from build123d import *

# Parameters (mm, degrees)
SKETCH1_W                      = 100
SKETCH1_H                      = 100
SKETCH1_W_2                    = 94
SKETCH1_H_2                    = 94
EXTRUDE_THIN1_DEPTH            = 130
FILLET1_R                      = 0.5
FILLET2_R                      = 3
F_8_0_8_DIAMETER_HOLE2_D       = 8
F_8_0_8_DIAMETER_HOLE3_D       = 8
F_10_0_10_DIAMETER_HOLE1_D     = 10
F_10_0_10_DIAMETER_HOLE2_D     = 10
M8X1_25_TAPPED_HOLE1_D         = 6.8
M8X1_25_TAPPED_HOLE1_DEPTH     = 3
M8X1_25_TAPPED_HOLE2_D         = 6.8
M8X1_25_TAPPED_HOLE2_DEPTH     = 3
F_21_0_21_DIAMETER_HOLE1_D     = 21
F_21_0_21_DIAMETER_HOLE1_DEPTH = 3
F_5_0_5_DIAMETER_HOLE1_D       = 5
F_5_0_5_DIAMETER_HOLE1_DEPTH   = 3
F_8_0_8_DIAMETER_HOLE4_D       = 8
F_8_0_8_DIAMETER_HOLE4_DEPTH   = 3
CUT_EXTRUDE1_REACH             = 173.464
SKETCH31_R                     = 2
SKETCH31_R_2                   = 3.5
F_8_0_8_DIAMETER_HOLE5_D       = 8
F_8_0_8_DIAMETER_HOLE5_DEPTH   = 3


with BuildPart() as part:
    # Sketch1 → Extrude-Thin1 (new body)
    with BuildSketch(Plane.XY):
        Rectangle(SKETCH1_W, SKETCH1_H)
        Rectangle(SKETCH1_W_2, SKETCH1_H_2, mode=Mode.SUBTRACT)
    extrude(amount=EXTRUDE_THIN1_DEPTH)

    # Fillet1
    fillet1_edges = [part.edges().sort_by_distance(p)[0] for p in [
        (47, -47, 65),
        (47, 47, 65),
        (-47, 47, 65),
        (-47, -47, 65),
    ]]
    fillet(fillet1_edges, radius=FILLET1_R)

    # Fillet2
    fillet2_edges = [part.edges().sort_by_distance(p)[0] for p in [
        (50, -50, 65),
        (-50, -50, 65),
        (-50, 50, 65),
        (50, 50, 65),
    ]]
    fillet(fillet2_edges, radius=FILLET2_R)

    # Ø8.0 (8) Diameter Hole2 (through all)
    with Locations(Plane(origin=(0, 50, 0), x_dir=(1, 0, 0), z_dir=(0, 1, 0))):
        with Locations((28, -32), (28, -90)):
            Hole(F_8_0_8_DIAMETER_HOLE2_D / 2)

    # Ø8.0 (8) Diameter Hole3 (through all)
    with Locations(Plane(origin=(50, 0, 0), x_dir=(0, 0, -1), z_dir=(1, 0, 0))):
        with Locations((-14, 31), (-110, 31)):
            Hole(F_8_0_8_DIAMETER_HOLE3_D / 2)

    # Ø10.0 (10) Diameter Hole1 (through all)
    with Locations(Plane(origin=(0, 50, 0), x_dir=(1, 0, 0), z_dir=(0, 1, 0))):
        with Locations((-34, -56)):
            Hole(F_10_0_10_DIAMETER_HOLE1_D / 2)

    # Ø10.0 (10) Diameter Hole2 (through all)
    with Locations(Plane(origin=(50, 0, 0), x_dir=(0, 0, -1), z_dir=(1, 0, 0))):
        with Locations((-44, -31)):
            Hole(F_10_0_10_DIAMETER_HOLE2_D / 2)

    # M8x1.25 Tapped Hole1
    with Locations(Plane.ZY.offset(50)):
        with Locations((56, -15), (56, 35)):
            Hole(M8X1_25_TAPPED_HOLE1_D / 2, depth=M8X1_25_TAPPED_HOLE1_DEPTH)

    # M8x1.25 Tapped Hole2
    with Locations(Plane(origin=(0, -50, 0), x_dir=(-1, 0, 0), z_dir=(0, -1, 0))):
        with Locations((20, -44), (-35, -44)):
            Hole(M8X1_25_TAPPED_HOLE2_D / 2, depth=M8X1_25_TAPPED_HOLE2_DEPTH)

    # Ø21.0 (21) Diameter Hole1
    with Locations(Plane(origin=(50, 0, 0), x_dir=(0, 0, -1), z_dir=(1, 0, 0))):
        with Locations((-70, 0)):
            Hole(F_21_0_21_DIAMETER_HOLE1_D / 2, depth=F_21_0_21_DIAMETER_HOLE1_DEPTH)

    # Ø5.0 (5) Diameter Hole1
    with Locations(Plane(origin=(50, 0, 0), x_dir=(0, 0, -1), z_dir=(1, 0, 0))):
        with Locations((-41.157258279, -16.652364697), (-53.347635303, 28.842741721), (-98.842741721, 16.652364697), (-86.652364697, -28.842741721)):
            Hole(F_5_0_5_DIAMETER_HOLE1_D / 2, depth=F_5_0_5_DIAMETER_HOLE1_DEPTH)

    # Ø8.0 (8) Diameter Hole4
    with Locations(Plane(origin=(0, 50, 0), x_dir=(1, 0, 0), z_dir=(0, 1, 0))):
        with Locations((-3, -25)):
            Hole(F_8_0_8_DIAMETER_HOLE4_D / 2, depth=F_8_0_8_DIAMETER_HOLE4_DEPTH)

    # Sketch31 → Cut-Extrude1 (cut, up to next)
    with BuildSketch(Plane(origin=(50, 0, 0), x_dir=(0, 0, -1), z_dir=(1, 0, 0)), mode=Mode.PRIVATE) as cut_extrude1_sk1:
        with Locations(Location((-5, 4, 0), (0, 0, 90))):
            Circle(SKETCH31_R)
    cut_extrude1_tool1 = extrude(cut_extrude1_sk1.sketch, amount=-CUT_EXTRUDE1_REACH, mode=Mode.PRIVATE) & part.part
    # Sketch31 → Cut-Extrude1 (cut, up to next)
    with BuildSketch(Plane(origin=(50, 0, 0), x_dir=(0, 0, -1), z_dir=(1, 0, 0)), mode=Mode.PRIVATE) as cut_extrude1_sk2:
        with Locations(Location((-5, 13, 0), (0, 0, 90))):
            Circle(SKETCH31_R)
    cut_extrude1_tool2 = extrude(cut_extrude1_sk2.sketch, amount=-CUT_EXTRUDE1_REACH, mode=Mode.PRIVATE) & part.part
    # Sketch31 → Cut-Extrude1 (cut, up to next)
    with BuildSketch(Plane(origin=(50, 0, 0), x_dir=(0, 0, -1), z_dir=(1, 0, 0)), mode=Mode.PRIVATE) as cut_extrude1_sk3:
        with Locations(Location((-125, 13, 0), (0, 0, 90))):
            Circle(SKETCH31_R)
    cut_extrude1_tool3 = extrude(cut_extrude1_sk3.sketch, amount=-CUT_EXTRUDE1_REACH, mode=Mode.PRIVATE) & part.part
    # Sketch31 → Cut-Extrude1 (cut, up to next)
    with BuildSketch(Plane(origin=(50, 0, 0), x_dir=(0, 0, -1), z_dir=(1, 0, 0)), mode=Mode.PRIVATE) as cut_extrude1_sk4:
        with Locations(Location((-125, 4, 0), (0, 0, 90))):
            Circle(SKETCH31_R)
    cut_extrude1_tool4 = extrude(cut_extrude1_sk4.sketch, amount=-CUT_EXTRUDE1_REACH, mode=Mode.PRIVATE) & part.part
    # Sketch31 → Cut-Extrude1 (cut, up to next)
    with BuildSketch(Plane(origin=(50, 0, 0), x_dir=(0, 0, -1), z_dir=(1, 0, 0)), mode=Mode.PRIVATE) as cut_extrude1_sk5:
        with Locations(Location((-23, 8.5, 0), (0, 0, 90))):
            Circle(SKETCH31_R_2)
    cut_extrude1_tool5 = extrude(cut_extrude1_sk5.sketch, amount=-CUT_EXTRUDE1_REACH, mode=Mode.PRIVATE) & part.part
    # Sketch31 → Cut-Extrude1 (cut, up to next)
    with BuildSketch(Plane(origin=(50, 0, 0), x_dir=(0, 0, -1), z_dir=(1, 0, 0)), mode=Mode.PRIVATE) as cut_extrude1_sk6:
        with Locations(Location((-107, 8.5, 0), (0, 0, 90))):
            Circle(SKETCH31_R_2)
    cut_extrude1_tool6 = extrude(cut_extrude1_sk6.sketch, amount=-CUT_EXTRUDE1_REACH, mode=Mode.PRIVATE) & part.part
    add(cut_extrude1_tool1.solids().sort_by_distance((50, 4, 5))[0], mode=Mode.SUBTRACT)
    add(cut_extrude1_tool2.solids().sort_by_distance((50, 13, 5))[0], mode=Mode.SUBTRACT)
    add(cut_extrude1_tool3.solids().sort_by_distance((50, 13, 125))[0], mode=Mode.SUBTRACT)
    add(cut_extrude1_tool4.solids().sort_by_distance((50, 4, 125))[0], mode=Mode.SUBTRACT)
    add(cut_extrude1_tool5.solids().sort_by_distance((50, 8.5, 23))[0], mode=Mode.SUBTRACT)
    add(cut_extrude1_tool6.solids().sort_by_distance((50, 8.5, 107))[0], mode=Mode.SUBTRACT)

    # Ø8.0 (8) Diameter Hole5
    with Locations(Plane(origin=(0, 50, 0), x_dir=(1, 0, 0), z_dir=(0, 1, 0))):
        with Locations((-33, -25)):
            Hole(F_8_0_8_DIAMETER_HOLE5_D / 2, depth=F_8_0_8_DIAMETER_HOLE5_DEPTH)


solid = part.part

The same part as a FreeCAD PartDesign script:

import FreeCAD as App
import Part
import Sketcher
from FreeCAD import Vector
Q = App.Units.Quantity


def edges_at(feature, points):
    """Names of the edges that pass closest to the given points."""
    edges = feature.Shape.Edges
    near = lambda p: min(range(len(edges)), key=lambda i: edges[i].distToShape(Part.Vertex(*p))[0])
    return sorted({f"Edge{near(p) + 1}" for p in points})

doc = App.newDocument("Part")
body = doc.addObject("PartDesign::Body", "Body")

sketch1 = doc.addObject("Sketcher::SketchObject", "Sketch")
body.addObject(sketch1)
sketch1.AttachmentSupport = (doc.XY_Plane, [""])
sketch1.MapMode = "FlatFace"
sketch1.addGeometry([
    Part.LineSegment(Vector(-50, 50, 0), Vector(-50, -50, 0)),
    Part.LineSegment(Vector(-50, -50, 0), Vector(50, -50, 0)),
    Part.LineSegment(Vector(50, -50, 0), Vector(50, 50, 0)),
    Part.LineSegment(Vector(50, 50, 0), Vector(-50, 50, 0)),
    Part.LineSegment(Vector(47, -47, 0), Vector(-47, -47, 0)),
    Part.LineSegment(Vector(-47, -47, 0), Vector(-47, 47, 0)),
    Part.LineSegment(Vector(-47, 47, 0), Vector(47, 47, 0)),
    Part.LineSegment(Vector(47, 47, 0), Vector(47, -47, 0)),
], False)
sketch1.addConstraint([
    Sketcher.Constraint("Coincident", 0, 2, 1, 1),
    Sketcher.Constraint("Coincident", 1, 2, 2, 1),
    Sketcher.Constraint("Coincident", 2, 2, 3, 1),
    Sketcher.Constraint("Coincident", 3, 2, 0, 1),
    Sketcher.Constraint("Coincident", 4, 2, 5, 1),
    Sketcher.Constraint("Coincident", 5, 2, 6, 1),
    Sketcher.Constraint("Coincident", 6, 2, 7, 1),
    Sketcher.Constraint("Coincident", 7, 2, 4, 1),
    Sketcher.Constraint("Vertical", 0),
    Sketcher.Constraint("Horizontal", 1),
    Sketcher.Constraint("Vertical", 2),
    Sketcher.Constraint("Horizontal", 3),
    Sketcher.Constraint("Horizontal", 4),
    Sketcher.Constraint("Vertical", 5),
    Sketcher.Constraint("Horizontal", 6),
    Sketcher.Constraint("Vertical", 7),
    Sketcher.Constraint("Symmetric", 0, 2, 2, 2, -1, 1),
    Sketcher.Constraint("Symmetric", 4, 2, 6, 2, -1, 1),
    Sketcher.Constraint("Equal", 3, 0),
    Sketcher.Constraint("Equal", 6, 5),
    Sketcher.Constraint("DistanceX", 1, 1, 1, 2, Q("100 mm")),
    Sketcher.Constraint("DistanceX", 4, 2, 4, 1, Q("94 mm")),
])
pad1 = doc.addObject("PartDesign::Pad", "Pad")
body.addObject(pad1)
pad1.Profile = sketch1
pad1.Length = 130
doc.recompute()

fillet = doc.addObject("PartDesign::Fillet", "Fillet")
body.addObject(fillet)
fillet.Base = (pad1, edges_at(pad1, [
    (47, -47, 65),
    (47, 47, 65),
    (-47, 47, 65),
    (-47, -47, 65),
]))
fillet.Radius = 0.5
doc.recompute()

fillet2 = doc.addObject("PartDesign::Fillet", "Fillet001")
body.addObject(fillet2)
fillet2.Base = (fillet, edges_at(fillet, [
    (50, -50, 65),
    (-50, -50, 65),
    (-50, 50, 65),
    (50, 50, 65),
]))
fillet2.Radius = 3

sketch2 = doc.addObject("Sketcher::SketchObject", "Sketch001")
body.addObject(sketch2)
sketch2.AttachmentSupport = (doc.XZ_Plane, [""])
sketch2.MapMode = "FlatFace"
sketch2.AttachmentOffset = App.Placement(Vector(0, 0, -50), App.Rotation())
sketch2.addGeometry([
    Part.Circle(Vector(28, 32, 0), Vector(0, 0, 1), 4),
    Part.Circle(Vector(28, 90, 0), Vector(0, 0, 1), 4),
], False)
sketch2.addConstraint([
    Sketcher.Constraint("Equal", 0, 1),
    Sketcher.Constraint("Vertical", 0, 3, 1, 3),
    Sketcher.Constraint("Diameter", 0, Q("8 mm")),
    Sketcher.Constraint("DistanceX", -1, 1, 0, 3, Q("28 mm")),
    Sketcher.Constraint("DistanceY", -1, 1, 0, 3, Q("32 mm")),
    Sketcher.Constraint("DistanceY", -1, 1, 1, 3, Q("90 mm")),
])
doc.recompute()
hole = doc.addObject("PartDesign::Hole", "Hole")
body.addObject(hole)
hole.Profile = sketch2
hole.ThreadType = "None"
hole.Diameter = 8
hole.DepthType = "ThroughAll"
hole.Reversed = True

sketch3 = doc.addObject("Sketcher::SketchObject", "Sketch002")
body.addObject(sketch3)
sketch3.AttachmentSupport = (doc.YZ_Plane, [""])
sketch3.MapMode = "FlatFace"
sketch3.AttachmentOffset = App.Placement(Vector(0, 0, 50), App.Rotation())
sketch3.addGeometry([
    Part.Circle(Vector(31, 14, 0), Vector(0, 0, 1), 4),
    Part.Circle(Vector(31, 110, 0), Vector(0, 0, 1), 4),
], False)
sketch3.addConstraint([
    Sketcher.Constraint("Equal", 0, 1),
    Sketcher.Constraint("Vertical", 0, 3, 1, 3),
    Sketcher.Constraint("Diameter", 0, Q("8 mm")),
    Sketcher.Constraint("DistanceX", -1, 1, 0, 3, Q("31 mm")),
    Sketcher.Constraint("DistanceY", -1, 1, 0, 3, Q("14 mm")),
    Sketcher.Constraint("DistanceY", -1, 1, 1, 3, Q("110 mm")),
])
doc.recompute()
hole2 = doc.addObject("PartDesign::Hole", "Hole001")
body.addObject(hole2)
hole2.Profile = sketch3
hole2.ThreadType = "None"
hole2.Diameter = 8
hole2.DepthType = "ThroughAll"

sketch4 = doc.addObject("Sketcher::SketchObject", "Sketch003")
body.addObject(sketch4)
sketch4.AttachmentSupport = (doc.XZ_Plane, [""])
sketch4.MapMode = "FlatFace"
sketch4.AttachmentOffset = App.Placement(Vector(0, 0, -50), App.Rotation())
sketch4.addGeometry(Part.Circle(Vector(-34, 56, 0), Vector(0, 0, 1), 5), False)
sketch4.addConstraint([
    Sketcher.Constraint("Diameter", 0, Q("10 mm")),
    Sketcher.Constraint("DistanceX", 0, 3, -1, 1, Q("34 mm")),
    Sketcher.Constraint("DistanceY", -1, 1, 0, 3, Q("56 mm")),
])
doc.recompute()
hole3 = doc.addObject("PartDesign::Hole", "Hole002")
body.addObject(hole3)
hole3.Profile = sketch4
hole3.ThreadType = "None"
hole3.Diameter = 10
hole3.DepthType = "ThroughAll"
hole3.Reversed = True

sketch5 = doc.addObject("Sketcher::SketchObject", "Sketch004")
body.addObject(sketch5)
sketch5.AttachmentSupport = (doc.YZ_Plane, [""])
sketch5.MapMode = "FlatFace"
sketch5.AttachmentOffset = App.Placement(Vector(0, 0, 50), App.Rotation())
sketch5.addGeometry(Part.Circle(Vector(-31, 44, 0), Vector(0, 0, 1), 5), False)
sketch5.addConstraint([
    Sketcher.Constraint("Diameter", 0, Q("10 mm")),
    Sketcher.Constraint("DistanceX", 0, 3, -1, 1, Q("31 mm")),
    Sketcher.Constraint("DistanceY", -1, 1, 0, 3, Q("44 mm")),
])
doc.recompute()
hole4 = doc.addObject("PartDesign::Hole", "Hole003")
body.addObject(hole4)
hole4.Profile = sketch5
hole4.ThreadType = "None"
hole4.Diameter = 10
hole4.DepthType = "ThroughAll"

sketch6 = doc.addObject("Sketcher::SketchObject", "Sketch005")
body.addObject(sketch6)
sketch6.AttachmentSupport = (doc.YZ_Plane, [""])
sketch6.MapMode = "FlatFace"
sketch6.AttachmentOffset = App.Placement(Vector(0, 0, -50), App.Rotation())
sketch6.addGeometry([
    Part.Circle(Vector(-15, 56, 0), Vector(0, 0, 1), 3.4),
    Part.Circle(Vector(35, 56, 0), Vector(0, 0, 1), 3.4),
], False)
sketch6.addConstraint([
    Sketcher.Constraint("Equal", 0, 1),
    Sketcher.Constraint("Horizontal", 0, 3, 1, 3),
    Sketcher.Constraint("Diameter", 0, Q("6.8 mm")),
    Sketcher.Constraint("DistanceX", 0, 3, -1, 1, Q("15 mm")),
    Sketcher.Constraint("DistanceY", -1, 1, 0, 3, Q("56 mm")),
    Sketcher.Constraint("DistanceX", -1, 1, 1, 3, Q("35 mm")),
])
doc.recompute()
hole5 = doc.addObject("PartDesign::Hole", "Hole004")
body.addObject(hole5)
hole5.Profile = sketch6
hole5.ThreadType = "None"
hole5.Diameter = 6.8
hole5.DepthType = "Dimension"
hole5.Depth = 3
hole5.DrillPoint = "Flat"
hole5.Reversed = True

sketch7 = doc.addObject("Sketcher::SketchObject", "Sketch006")
body.addObject(sketch7)
sketch7.AttachmentSupport = (doc.XZ_Plane, [""])
sketch7.MapMode = "FlatFace"
sketch7.AttachmentOffset = App.Placement(Vector(0, 0, 50), App.Rotation())
sketch7.addGeometry([
    Part.Circle(Vector(-20, 44, 0), Vector(0, 0, 1), 3.4),
    Part.Circle(Vector(35, 44, 0), Vector(0, 0, 1), 3.4),
], False)
sketch7.addConstraint([
    Sketcher.Constraint("Equal", 0, 1),
    Sketcher.Constraint("Horizontal", 0, 3, 1, 3),
    Sketcher.Constraint("Diameter", 0, Q("6.8 mm")),
    Sketcher.Constraint("DistanceX", 0, 3, -1, 1, Q("20 mm")),
    Sketcher.Constraint("DistanceY", -1, 1, 0, 3, Q("44 mm")),
    Sketcher.Constraint("DistanceX", -1, 1, 1, 3, Q("35 mm")),
])
doc.recompute()
hole6 = doc.addObject("PartDesign::Hole", "Hole005")
body.addObject(hole6)
hole6.Profile = sketch7
hole6.ThreadType = "None"
hole6.Diameter = 6.8
hole6.DepthType = "Dimension"
hole6.Depth = 3
hole6.DrillPoint = "Flat"

sketch8 = doc.addObject("Sketcher::SketchObject", "Sketch007")
body.addObject(sketch8)
sketch8.AttachmentSupport = (doc.YZ_Plane, [""])
sketch8.MapMode = "FlatFace"
sketch8.AttachmentOffset = App.Placement(Vector(0, 0, 50), App.Rotation())
sketch8.addGeometry(Part.Circle(Vector(0, 70, 0), Vector(0, 0, 1), 10.5), False)
sketch8.addConstraint([
    Sketcher.Constraint("PointOnObject", 0, 3, -2),
    Sketcher.Constraint("Diameter", 0, Q("21 mm")),
    Sketcher.Constraint("DistanceY", -1, 1, 0, 3, Q("70 mm")),
])
doc.recompute()
hole7 = doc.addObject("PartDesign::Hole", "Hole006")
body.addObject(hole7)
hole7.Profile = sketch8
hole7.ThreadType = "None"
hole7.Diameter = 21
hole7.DepthType = "Dimension"
hole7.Depth = 3
hole7.DrillPoint = "Flat"

sketch9 = doc.addObject("Sketcher::SketchObject", "Sketch008")
body.addObject(sketch9)
sketch9.AttachmentSupport = (doc.YZ_Plane, [""])
sketch9.MapMode = "FlatFace"
sketch9.AttachmentOffset = App.Placement(Vector(0, 0, 50), App.Rotation())
sketch9.addGeometry([
    Part.Circle(Vector(-16.652365, 41.157258, 0), Vector(0, 0, 1), 2.5),
    Part.Circle(Vector(28.842742, 53.347635, 0), Vector(0, 0, 1), 2.5),
    Part.Circle(Vector(16.652365, 98.842742, 0), Vector(0, 0, 1), 2.5),
    Part.Circle(Vector(-28.842742, 86.652365, 0), Vector(0, 0, 1), 2.5),
], False)
sketch9.addConstraint([
    Sketcher.Constraint("Equal", 0, 1),
    Sketcher.Constraint("Equal", 1, 2),
    Sketcher.Constraint("Equal", 2, 3),
    Sketcher.Constraint("Diameter", 0, Q("5 mm")),
    Sketcher.Constraint("DistanceY", -1, 1, 0, 3, Q("41.157258 mm")),
    Sketcher.Constraint("DistanceX", -1, 1, 1, 3, Q("28.842742 mm")),
    Sketcher.Constraint("DistanceY", -1, 1, 2, 3, Q("98.842742 mm")),
    Sketcher.Constraint("DistanceX", 3, 3, -1, 1, Q("28.842742 mm")),
    Sketcher.Constraint("DistanceX", 0, 3, 2, 3, Q("33.304729 mm")),
    Sketcher.Constraint("DistanceY", 1, 3, 3, 3, Q("33.304729 mm")),
    Sketcher.Constraint("DistanceX", 0, 3, -1, 1, Q("16.652365 mm")),
    Sketcher.Constraint("DistanceY", -1, 1, 1, 3, Q("53.347635 mm")),
])
doc.recompute()
hole8 = doc.addObject("PartDesign::Hole", "Hole007")
body.addObject(hole8)
hole8.Profile = sketch9
hole8.ThreadType = "None"
hole8.Diameter = 5
hole8.DepthType = "Dimension"
hole8.Depth = 3
hole8.DrillPoint = "Flat"

sketch10 = doc.addObject("Sketcher::SketchObject", "Sketch009")
body.addObject(sketch10)
sketch10.AttachmentSupport = (doc.XZ_Plane, [""])
sketch10.MapMode = "FlatFace"
sketch10.AttachmentOffset = App.Placement(Vector(0, 0, -50), App.Rotation())
sketch10.addGeometry(Part.Circle(Vector(-3, 25, 0), Vector(0, 0, 1), 4), False)
sketch10.addConstraint([
    Sketcher.Constraint("Diameter", 0, Q("8 mm")),
    Sketcher.Constraint("DistanceX", 0, 3, -1, 1, Q("3 mm")),
    Sketcher.Constraint("DistanceY", -1, 1, 0, 3, Q("25 mm")),
])
doc.recompute()
hole9 = doc.addObject("PartDesign::Hole", "Hole008")
body.addObject(hole9)
hole9.Profile = sketch10
hole9.ThreadType = "None"
hole9.Diameter = 8
hole9.DepthType = "Dimension"
hole9.Depth = 3
hole9.DrillPoint = "Flat"
hole9.Reversed = True

sketch11 = doc.addObject("Sketcher::SketchObject", "Sketch010")
body.addObject(sketch11)
sketch11.AttachmentSupport = (doc.YZ_Plane, [""])
sketch11.MapMode = "FlatFace"
sketch11.AttachmentOffset = App.Placement(Vector(0, 0, 50), App.Rotation())
sketch11.addGeometry(Part.Circle(Vector(4, 5, 0), Vector(0, 0, 1), 2), False)
sketch11.addConstraint([
    Sketcher.Constraint("Diameter", 0, Q("4 mm")),
    Sketcher.Constraint("DistanceX", -1, 1, 0, 3, Q("4 mm")),
    Sketcher.Constraint("DistanceY", -1, 1, 0, 3, Q("5 mm")),
])
pocket1 = doc.addObject("PartDesign::Pocket", "Pocket")
body.addObject(pocket1)
pocket1.Profile = sketch11
pocket1.Type = "UpToFirst"

sketch12 = doc.addObject("Sketcher::SketchObject", "Sketch011")
body.addObject(sketch12)
sketch12.AttachmentSupport = (doc.YZ_Plane, [""])
sketch12.MapMode = "FlatFace"
sketch12.AttachmentOffset = App.Placement(Vector(0, 0, 50), App.Rotation())
sketch12.addGeometry(Part.Circle(Vector(13, 5, 0), Vector(0, 0, 1), 2), False)
sketch12.addConstraint([
    Sketcher.Constraint("Diameter", 0, Q("4 mm")),
    Sketcher.Constraint("DistanceX", -1, 1, 0, 3, Q("13 mm")),
    Sketcher.Constraint("DistanceY", -1, 1, 0, 3, Q("5 mm")),
])
pocket2 = doc.addObject("PartDesign::Pocket", "Pocket001")
body.addObject(pocket2)
pocket2.Profile = sketch12
pocket2.Type = "UpToFirst"

sketch13 = doc.addObject("Sketcher::SketchObject", "Sketch012")
body.addObject(sketch13)
sketch13.AttachmentSupport = (doc.YZ_Plane, [""])
sketch13.MapMode = "FlatFace"
sketch13.AttachmentOffset = App.Placement(Vector(0, 0, 50), App.Rotation())
sketch13.addGeometry(Part.Circle(Vector(13, 125, 0), Vector(0, 0, 1), 2), False)
sketch13.addConstraint([
    Sketcher.Constraint("Diameter", 0, Q("4 mm")),
    Sketcher.Constraint("DistanceX", -1, 1, 0, 3, Q("13 mm")),
    Sketcher.Constraint("DistanceY", -1, 1, 0, 3, Q("125 mm")),
])
pocket3 = doc.addObject("PartDesign::Pocket", "Pocket002")
body.addObject(pocket3)
pocket3.Profile = sketch13
pocket3.Type = "UpToFirst"

sketch14 = doc.addObject("Sketcher::SketchObject", "Sketch013")
body.addObject(sketch14)
sketch14.AttachmentSupport = (doc.YZ_Plane, [""])
sketch14.MapMode = "FlatFace"
sketch14.AttachmentOffset = App.Placement(Vector(0, 0, 50), App.Rotation())
sketch14.addGeometry(Part.Circle(Vector(4, 125, 0), Vector(0, 0, 1), 2), False)
sketch14.addConstraint([
    Sketcher.Constraint("Diameter", 0, Q("4 mm")),
    Sketcher.Constraint("DistanceX", -1, 1, 0, 3, Q("4 mm")),
    Sketcher.Constraint("DistanceY", -1, 1, 0, 3, Q("125 mm")),
])
pocket4 = doc.addObject("PartDesign::Pocket", "Pocket003")
body.addObject(pocket4)
pocket4.Profile = sketch14
pocket4.Type = "UpToFirst"

sketch15 = doc.addObject("Sketcher::SketchObject", "Sketch014")
body.addObject(sketch15)
sketch15.AttachmentSupport = (doc.YZ_Plane, [""])
sketch15.MapMode = "FlatFace"
sketch15.AttachmentOffset = App.Placement(Vector(0, 0, 50), App.Rotation())
sketch15.addGeometry(Part.Circle(Vector(8.5, 23, 0), Vector(0, 0, 1), 3.5), False)
sketch15.addConstraint([
    Sketcher.Constraint("Diameter", 0, Q("7 mm")),
    Sketcher.Constraint("DistanceY", -1, 1, 0, 3, Q("23 mm")),
    Sketcher.Constraint("DistanceX", -1, 1, 0, 3, Q("8.5 mm")),
])
pocket5 = doc.addObject("PartDesign::Pocket", "Pocket004")
body.addObject(pocket5)
pocket5.Profile = sketch15
pocket5.Type = "UpToFirst"

sketch16 = doc.addObject("Sketcher::SketchObject", "Sketch015")
body.addObject(sketch16)
sketch16.AttachmentSupport = (doc.YZ_Plane, [""])
sketch16.MapMode = "FlatFace"
sketch16.AttachmentOffset = App.Placement(Vector(0, 0, 50), App.Rotation())
sketch16.addGeometry(Part.Circle(Vector(8.5, 107, 0), Vector(0, 0, 1), 3.5), False)
sketch16.addConstraint([
    Sketcher.Constraint("Diameter", 0, Q("7 mm")),
    Sketcher.Constraint("DistanceY", -1, 1, 0, 3, Q("107 mm")),
    Sketcher.Constraint("DistanceX", -1, 1, 0, 3, Q("8.5 mm")),
])
pocket6 = doc.addObject("PartDesign::Pocket", "Pocket005")
body.addObject(pocket6)
pocket6.Profile = sketch16
pocket6.Type = "UpToFirst"

sketch17 = doc.addObject("Sketcher::SketchObject", "Sketch016")
body.addObject(sketch17)
sketch17.AttachmentSupport = (doc.XZ_Plane, [""])
sketch17.MapMode = "FlatFace"
sketch17.AttachmentOffset = App.Placement(Vector(0, 0, -50), App.Rotation())
sketch17.addGeometry(Part.Circle(Vector(-33, 25, 0), Vector(0, 0, 1), 4), False)
sketch17.addConstraint([
    Sketcher.Constraint("Diameter", 0, Q("8 mm")),
    Sketcher.Constraint("DistanceX", 0, 3, -1, 1, Q("33 mm")),
    Sketcher.Constraint("DistanceY", -1, 1, 0, 3, Q("25 mm")),
])
doc.recompute()
hole10 = doc.addObject("PartDesign::Hole", "Hole009")
body.addObject(hole10)
hole10.Profile = sketch17
hole10.ThreadType = "None"
hole10.Diameter = 8
hole10.DepthType = "Dimension"
hole10.Depth = 3
hole10.DrillPoint = "Flat"
hole10.Reversed = True

doc.recompute()
